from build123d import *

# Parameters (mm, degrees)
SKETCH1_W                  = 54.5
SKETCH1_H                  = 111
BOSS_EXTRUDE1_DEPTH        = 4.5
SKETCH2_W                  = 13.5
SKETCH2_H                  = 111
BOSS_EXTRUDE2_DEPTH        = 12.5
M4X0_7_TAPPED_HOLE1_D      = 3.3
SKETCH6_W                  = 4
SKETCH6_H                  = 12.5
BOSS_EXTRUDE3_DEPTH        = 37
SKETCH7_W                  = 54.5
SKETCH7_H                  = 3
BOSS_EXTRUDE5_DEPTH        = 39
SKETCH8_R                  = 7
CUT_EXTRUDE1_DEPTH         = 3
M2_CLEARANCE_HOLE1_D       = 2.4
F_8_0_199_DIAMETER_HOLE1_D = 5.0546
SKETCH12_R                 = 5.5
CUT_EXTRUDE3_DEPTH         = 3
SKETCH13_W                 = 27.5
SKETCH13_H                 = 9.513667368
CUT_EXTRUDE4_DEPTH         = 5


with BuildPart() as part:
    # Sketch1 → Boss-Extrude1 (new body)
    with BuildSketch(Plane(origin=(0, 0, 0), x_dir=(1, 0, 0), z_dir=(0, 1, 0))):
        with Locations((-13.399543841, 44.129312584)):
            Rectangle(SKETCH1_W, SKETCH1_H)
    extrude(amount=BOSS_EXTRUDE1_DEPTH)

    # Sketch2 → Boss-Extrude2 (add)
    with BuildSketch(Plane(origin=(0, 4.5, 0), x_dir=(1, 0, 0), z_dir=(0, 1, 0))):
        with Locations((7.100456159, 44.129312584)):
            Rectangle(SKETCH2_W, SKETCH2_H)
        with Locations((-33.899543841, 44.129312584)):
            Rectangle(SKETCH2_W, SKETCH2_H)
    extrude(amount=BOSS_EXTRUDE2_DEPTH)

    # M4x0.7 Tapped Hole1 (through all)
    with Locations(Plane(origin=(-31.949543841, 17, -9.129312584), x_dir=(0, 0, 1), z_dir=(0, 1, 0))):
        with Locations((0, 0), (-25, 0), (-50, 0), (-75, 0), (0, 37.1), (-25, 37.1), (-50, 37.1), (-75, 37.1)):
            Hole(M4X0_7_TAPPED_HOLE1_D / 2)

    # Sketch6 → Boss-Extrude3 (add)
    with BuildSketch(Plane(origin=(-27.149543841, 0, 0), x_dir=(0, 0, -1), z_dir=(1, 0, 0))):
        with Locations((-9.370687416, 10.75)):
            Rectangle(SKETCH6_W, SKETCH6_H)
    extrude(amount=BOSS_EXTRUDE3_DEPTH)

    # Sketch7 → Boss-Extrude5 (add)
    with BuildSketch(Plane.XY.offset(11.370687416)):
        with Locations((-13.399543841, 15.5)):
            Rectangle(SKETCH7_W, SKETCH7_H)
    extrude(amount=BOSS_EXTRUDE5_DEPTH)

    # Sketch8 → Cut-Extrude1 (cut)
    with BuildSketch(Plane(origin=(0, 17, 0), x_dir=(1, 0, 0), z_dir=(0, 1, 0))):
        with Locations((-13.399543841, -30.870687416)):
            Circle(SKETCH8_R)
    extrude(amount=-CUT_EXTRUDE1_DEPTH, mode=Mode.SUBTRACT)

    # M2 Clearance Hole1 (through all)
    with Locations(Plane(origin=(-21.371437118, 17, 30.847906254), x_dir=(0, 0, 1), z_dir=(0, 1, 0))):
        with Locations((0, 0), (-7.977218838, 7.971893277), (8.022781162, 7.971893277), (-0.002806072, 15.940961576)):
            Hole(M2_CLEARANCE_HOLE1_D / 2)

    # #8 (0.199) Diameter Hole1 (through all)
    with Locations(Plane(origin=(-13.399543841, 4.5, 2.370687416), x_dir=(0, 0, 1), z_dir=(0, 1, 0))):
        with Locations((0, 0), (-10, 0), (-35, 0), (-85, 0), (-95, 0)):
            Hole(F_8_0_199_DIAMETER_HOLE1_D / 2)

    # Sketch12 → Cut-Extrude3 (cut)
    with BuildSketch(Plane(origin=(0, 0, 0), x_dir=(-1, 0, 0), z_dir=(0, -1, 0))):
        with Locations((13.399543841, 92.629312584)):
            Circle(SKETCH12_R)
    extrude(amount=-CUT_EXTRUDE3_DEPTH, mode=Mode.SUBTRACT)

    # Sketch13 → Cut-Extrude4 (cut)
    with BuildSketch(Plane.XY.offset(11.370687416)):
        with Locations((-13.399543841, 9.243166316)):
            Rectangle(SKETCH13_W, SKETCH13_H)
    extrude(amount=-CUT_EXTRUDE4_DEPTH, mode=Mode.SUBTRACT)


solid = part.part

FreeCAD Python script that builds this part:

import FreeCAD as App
import Part
import Sketcher

V = App.Vector
Q = App.Units.Quantity


def add_polygon(sketch, points):
    """Adds a closed chain of lines whose ends are joined by coincident constraints."""
    first, n = sketch.GeometryCount, len(points)
    for a, b in zip(points, points[1:] + points[:1]):
        sketch.addGeometry(Part.LineSegment(App.Vector(*a, 0), App.Vector(*b, 0)), False)
    for i in range(n):
        sketch.addConstraint(Sketcher.Constraint("Coincident", first + i, 2, first + (i + 1) % n, 1))

doc = App.newDocument("Part")
params = doc.addObject("Spreadsheet::Sheet", "Params")
for row, (alias, value) in enumerate([
    ("sketch1_height", "111 mm"),
    ("sketch1_width", "54.5 mm"),
    ("pad1_length", "4.5 mm"),
    ("sketch2_height", "111 mm"),
    ("sketch2_width", "13.5 mm"),
    ("pad2_length", "12.5 mm"),
    ("sketch3_diameter", "3.3 mm"),
    ("hole_diameter", "3.3 mm"),
    ("sketch4_height", "4 mm"),
    ("sketch4_width", "12.5 mm"),
    ("pad3_length", "37 mm"),
    ("sketch5_height", "3 mm"),
    ("sketch5_width", "54.5 mm"),
    ("pad4_length", "39 mm"),
    ("sketch6_diameter", "14 mm"),
    ("pocket1_length", "3 mm"),
    ("sketch7_diameter", "2.4 mm"),
    ("hole2_diameter", "2.4 mm"),
    ("hole3_diameter", "5.0546 mm"),
    ("sketch9_diameter", "11 mm"),
    ("pocket2_length", "3 mm"),
    ("sketch10_width", "27.5 mm"),
    ("pocket3_length", "5 mm"),
], start=1):
    params.set(f"A{row}", alias)
    params.set(f"B{row}", "=" + value)
    params.setAlias(f"B{row}", alias)

body = doc.addObject("PartDesign::Body", "Body")

# Sketch on XZ plane
sketch1 = doc.addObject("Sketcher::SketchObject", "Sketch")
body.addObject(sketch1)
sketch1.AttachmentSupport = (doc.XZ_Plane, [""])
sketch1.MapMode = "FlatFace"
add_polygon(sketch1, [(-40.649544, -99.629313), (-40.649544, 11.370687), (13.850456, 11.370687), (13.850456, -99.629313)])  # lines 0-3
sketch1.addConstraint(Sketcher.Constraint("Vertical", 0))
sketch1.addConstraint(Sketcher.Constraint("Horizontal", 1))
sketch1.addConstraint(Sketcher.Constraint("Vertical", 2))
sketch1.addConstraint(Sketcher.Constraint("Horizontal", 3))
sketch1.addConstraint(Sketcher.Constraint("DistanceY", 0, 1, 0, 2, Q("111 mm")))
sketch1.addConstraint(Sketcher.Constraint("DistanceX", 1, 1, 1, 2, Q("54.5 mm")))
sketch1.addConstraint(Sketcher.Constraint("DistanceX", 0, 2, -1, 1, Q("40.649544 mm")))
sketch1.addConstraint(Sketcher.Constraint("DistanceY", -1, 1, 0, 2, Q("11.370687 mm")))
sketch1.setExpression("Constraints[8]", "Params.sketch1_height")
sketch1.setExpression("Constraints[9]", "Params.sketch1_width")
pad1 = doc.addObject("PartDesign::Pad", "Pad")
body.addObject(pad1)
pad1.Profile = sketch1
pad1.setExpression("Length", "Params.pad1_length")
pad1.Reversed = True

# Sketch on XZ plane
sketch2 = doc.addObject("Sketcher::SketchObject", "Sketch001")
body.addObject(sketch2)
sketch2.AttachmentSupport = (doc.XZ_Plane, [""])
sketch2.MapMode = "FlatFace"
sketch2.AttachmentOffset = App.Placement(V(0, 0, -4.5), App.Rotation())
add_polygon(sketch2, [(0.350456, -99.629313), (0.350456, 11.370687), (13.850456, 11.370687), (13.850456, -99.629313)])  # lines 0-3
add_polygon(sketch2, [(-40.649544, -99.629313), (-40.649544, 11.370687), (-27.149544, 11.370687), (-27.149544, -99.629313)])  # lines 4-7
sketch2.addConstraint(Sketcher.Constraint("Vertical", 0))
sketch2.addConstraint(Sketcher.Constraint("Horizontal", 1))
sketch2.addConstraint(Sketcher.Constraint("Vertical", 2))
sketch2.addConstraint(Sketcher.Constraint("Horizontal", 3))
sketch2.addConstraint(Sketcher.Constraint("Vertical", 4))
sketch2.addConstraint(Sketcher.Constraint("Horizontal", 5))
sketch2.addConstraint(Sketcher.Constraint("Vertical", 6))
sketch2.addConstraint(Sketcher.Constraint("Horizontal", 7))
sketch2.addConstraint(Sketcher.Constraint("Horizontal", 1, 2, 4, 2))
sketch2.addConstraint(Sketcher.Constraint("Horizontal", 3, 2, 6, 2))
sketch2.addConstraint(Sketcher.Constraint("Equal", 3, 5))
sketch2.addConstraint(Sketcher.Constraint("DistanceY", 0, 1, 0, 2, Q("111 mm")))
sketch2.addConstraint(Sketcher.Constraint("DistanceX", 1, 1, 1, 2, Q("13.5 mm")))
sketch2.addConstraint(Sketcher.Constraint("DistanceX", 4, 2, 0, 2, Q("41 mm")))
sketch2.addConstraint(Sketcher.Constraint("DistanceX", -1, 1, 0, 2, Q("0.350456 mm")))
sketch2.addConstraint(Sketcher.Constraint("DistanceY", -1, 1, 0, 2, Q("11.370687 mm")))
sketch2.setExpression("Constraints[19]", "Params.sketch2_height")
sketch2.setExpression("Constraints[20]", "Params.sketch2_width")
pad2 = doc.addObject("PartDesign::Pad", "Pad001")
body.addObject(pad2)
pad2.Profile = sketch2
pad2.setExpression("Length", "Params.pad2_length")
pad2.Reversed = True

# Sketch on XZ plane
sketch3 = doc.addObject("Sketcher::SketchObject", "Sketch002")
body.addObject(sketch3)
sketch3.AttachmentSupport = (doc.XZ_Plane, [""])
sketch3.MapMode = "FlatFace"
sketch3.AttachmentOffset = App.Placement(V(0, 0, -17), App.Rotation())
sketch3.addGeometry(Part.Circle(V(-31.949544, -9.129313, 0), V(0, 0, 1), 1.65), False)
sketch3.addGeometry(Part.Circle(V(-31.949544, -34.129313, 0), V(0, 0, 1), 1.65), False)
sketch3.addGeometry(Part.Circle(V(-31.949544, -59.129313, 0), V(0, 0, 1), 1.65), False)
sketch3.addGeometry(Part.Circle(V(-31.949544, -84.129313, 0), V(0, 0, 1), 1.65), False)
sketch3.addGeometry(Part.Circle(V(5.150456, -9.129313, 0), V(0, 0, 1), 1.65), False)
sketch3.addGeometry(Part.Circle(V(5.150456, -34.129313, 0), V(0, 0, 1), 1.65), False)
sketch3.addGeometry(Part.Circle(V(5.150456, -59.129313, 0), V(0, 0, 1), 1.65), False)
sketch3.addGeometry(Part.Circle(V(5.150456, -84.129313, 0), V(0, 0, 1), 1.65), False)
sketch3.addConstraint(Sketcher.Constraint("Equal", 0, 1))
sketch3.addConstraint(Sketcher.Constraint("Equal", 1, 2))
sketch3.addConstraint(Sketcher.Constraint("Equal", 2, 3))
sketch3.addConstraint(Sketcher.Constraint("Equal", 3, 4))
sketch3.addConstraint(Sketcher.Constraint("Equal", 4, 5))
sketch3.addConstraint(Sketcher.Constraint("Equal", 5, 6))
sketch3.addConstraint(Sketcher.Constraint("Equal", 6, 7))
sketch3.addConstraint(Sketcher.Constraint("Horizontal", 0, 3, 4, 3))
sketch3.addConstraint(Sketcher.Constraint("Horizontal", 1, 3, 5, 3))
sketch3.addConstraint(Sketcher.Constraint("Horizontal", 2, 3, 6, 3))
sketch3.addConstraint(Sketcher.Constraint("Horizontal", 3, 3, 7, 3))
sketch3.addConstraint(Sketcher.Constraint("Vertical", 0, 3, 1, 3))
sketch3.addConstraint(Sketcher.Constraint("Vertical", 1, 3, 2, 3))
sketch3.addConstraint(Sketcher.Constraint("Vertical", 2, 3, 3, 3))
sketch3.addConstraint(Sketcher.Constraint("Vertical", 4, 3, 5, 3))
sketch3.addConstraint(Sketcher.Constraint("Vertical", 5, 3, 6, 3))
sketch3.addConstraint(Sketcher.Constraint("Vertical", 6, 3, 7, 3))
sketch3.addConstraint(Sketcher.Constraint("Diameter", 0, Q("3.3 mm")))
sketch3.addConstraint(Sketcher.Constraint("DistanceY", 1, 3, 0, 3, Q("25 mm")))
sketch3.addConstraint(Sketcher.Constraint("DistanceY", 2, 3, 1, 3, Q("25 mm")))
sketch3.addConstraint(Sketcher.Constraint("DistanceY", 3, 3, 2, 3, Q("25 mm")))
sketch3.addConstraint(Sketcher.Constraint("DistanceX", 0, 3, 4, 3, Q("37.1 mm")))
sketch3.addConstraint(Sketcher.Constraint("DistanceX", 0, 3, -1, 1, Q("31.949544 mm")))
sketch3.addConstraint(Sketcher.Constraint("DistanceY", 0, 3, -1, 1, Q("9.129313 mm")))
sketch3.setExpression("Constraints[17]", "Params.sketch3_diameter")
doc.recompute()
hole = doc.addObject("PartDesign::Hole", "Hole")
body.addObject(hole)
hole.Profile = sketch3
hole.ThreadType = "None"
hole.setExpression("Diameter", "Params.hole_diameter")
hole.DepthType = "ThroughAll"
hole.Reversed = True

# Sketch on YZ plane
sketch4 = doc.addObject("Sketcher::SketchObject", "Sketch003")
body.addObject(sketch4)
sketch4.AttachmentSupport = (doc.YZ_Plane, [""])
sketch4.MapMode = "FlatFace"
sketch4.AttachmentOffset = App.Placement(V(0, 0, -27.149544), App.Rotation())
add_polygon(sketch4, [(17, 11.370687), (4.5, 11.370687), (4.5, 7.370687), (17, 7.370687)])  # lines 0-3
sketch4.addConstraint(Sketcher.Constraint("Horizontal", 0))
sketch4.addConstraint(Sketcher.Constraint("Vertical", 1))
sketch4.addConstraint(Sketcher.Constraint("Horizontal", 2))
sketch4.addConstraint(Sketcher.Constraint("Vertical", 3))
sketch4.addConstraint(Sketcher.Constraint("DistanceY", 1, 2, 1, 1, Q("4 mm")))
sketch4.addConstraint(Sketcher.Constraint("DistanceX", 0, 2, 0, 1, Q("12.5 mm")))
sketch4.addConstraint(Sketcher.Constraint("DistanceX", -1, 1, 2, 2, Q("17 mm")))
sketch4.addConstraint(Sketcher.Constraint("DistanceY", -1, 1, 0, 2, Q("11.370687 mm")))
sketch4.setExpression("Constraints[8]", "Params.sketch4_height")
sketch4.setExpression("Constraints[9]", "Params.sketch4_width")
pad3 = doc.addObject("PartDesign::Pad", "Pad002")
body.addObject(pad3)
pad3.Profile = sketch4
pad3.setExpression("Length", "Params.pad3_length")

# Sketch on XY plane
sketch5 = doc.addObject("Sketcher::SketchObject", "Sketch004")
body.addObject(sketch5)
sketch5.AttachmentSupport = (doc.XY_Plane, [""])
sketch5.MapMode = "FlatFace"
sketch5.AttachmentOffset = App.Placement(V(0, 0, 11.370687), App.Rotation())
add_polygon(sketch5, [(-40.649544, 17), (-40.649544, 14), (13.850456, 14), (13.850456, 17)])  # lines 0-3
sketch5.addConstraint(Sketcher.Constraint("Vertical", 0))
sketch5.addConstraint(Sketcher.Constraint("Horizontal", 1))
sketch5.addConstraint(Sketcher.Constraint("Vertical", 2))
sketch5.addConstraint(Sketcher.Constraint("Horizontal", 3))
sketch5.addConstraint(Sketcher.Constraint("DistanceY", 0, 2, 0, 1, Q("3 mm")))
sketch5.addConstraint(Sketcher.Constraint("DistanceX", 1, 1, 1, 2, Q("54.5 mm")))
sketch5.addConstraint(Sketcher.Constraint("DistanceY", -1, 1, 0, 2, Q("14 mm")))
sketch5.addConstraint(Sketcher.Constraint("DistanceX", 0, 2, -1, 1, Q("40.649544 mm")))
sketch5.setExpression("Constraints[8]", "Params.sketch5_height")
sketch5.setExpression("Constraints[9]", "Params.sketch5_width")
pad4 = doc.addObject("PartDesign::Pad", "Pad003")
body.addObject(pad4)
pad4.Profile = sketch5
pad4.setExpression("Length", "Params.pad4_length")

# Sketch on XZ plane
sketch6 = doc.addObject("Sketcher::SketchObject", "Sketch005")
body.addObject(sketch6)
sketch6.AttachmentSupport = (doc.XZ_Plane, [""])
sketch6.MapMode = "FlatFace"
sketch6.AttachmentOffset = App.Placement(V(0, 0, -17), App.Rotation())
sketch6.addGeometry(Part.Circle(V(-13.399544, 30.870687, 0), V(0, 0, 1), 7), False)
sketch6.addConstraint(Sketcher.Constraint("Diameter", 0, Q("14 mm")))
sketch6.addConstraint(Sketcher.Constraint("DistanceX", 0, 3, -1, 1, Q("13.399544 mm")))
sketch6.addConstraint(Sketcher.Constraint("DistanceY", -1, 1, 0, 3, Q("30.870687 mm")))
sketch6.setExpression("Constraints[0]", "Params.sketch6_diameter")
pocket1 = doc.addObject("PartDesign::Pocket", "Pocket")
body.addObject(pocket1)
pocket1.Profile = sketch6
pocket1.setExpression("Length", "Params.pocket1_length")
pocket1.Reversed = True

# Sketch on XZ plane
sketch7 = doc.addObject("Sketcher::SketchObject", "Sketch006")
body.addObject(sketch7)
sketch7.AttachmentSupport = (doc.XZ_Plane, [""])
sketch7.MapMode = "FlatFace"
sketch7.AttachmentOffset = App.Placement(V(0, 0, -17), App.Rotation())
sketch7.addGeometry(Part.Circle(V(-21.371437, 30.847906, 0), V(0, 0, 1), 1.2), False)
sketch7.addGeometry(Part.Circle(V(-13.399544, 22.870687, 0), V(0, 0, 1), 1.2), False)
sketch7.addGeometry(Part.Circle(V(-13.399544, 38.870687, 0), V(0, 0, 1), 1.2), False)
sketch7.addGeometry(Part.Circle(V(-5.430476, 30.8451, 0), V(0, 0, 1), 1.2), False)
sketch7.addConstraint(Sketcher.Constraint("Equal", 0, 1))
sketch7.addConstraint(Sketcher.Constraint("Equal", 1, 2))
sketch7.addConstraint(Sketcher.Constraint("Equal", 2, 3))
sketch7.addConstraint(Sketcher.Constraint("Vertical", 1, 3, 2, 3))
sketch7.addConstraint(Sketcher.Constraint("Diameter", 0, Q("2.4 mm")))
sketch7.addConstraint(Sketcher.Constraint("DistanceY", 1, 3, 2, 3, Q("16 mm")))
sketch7.addConstraint(Sketcher.Constraint("DistanceY", -1, 1, 3, 3, Q("30.8451 mm")))
sketch7.addConstraint(Sketcher.Constraint("DistanceY", 1, 3, 0, 3, Q("7.977219 mm")))
sketch7.addConstraint(Sketcher.Constraint("DistanceX", 1, 3, 3, 3, Q("7.969068 mm")))
sketch7.addConstraint(Sketcher.Constraint("DistanceX", 0, 3, 3, 3, Q("15.940962 mm")))
sketch7.addConstraint(Sketcher.Constraint("DistanceX", 0, 3, -1, 1, Q("21.371437 mm")))
sketch7.addConstraint(Sketcher.Constraint("DistanceY", -1, 1, 0, 3, Q("30.847906 mm")))
sketch7.setExpression("Constraints[4]", "Params.sketch7_diameter")
doc.recompute()
hole2 = doc.addObject("PartDesign::Hole", "Hole001")
body.addObject(hole2)
hole2.Profile = sketch7
hole2.ThreadType = "None"
hole2.setExpression("Diameter", "Params.hole2_diameter")
hole2.DepthType = "ThroughAll"
hole2.Reversed = True

# Sketch on XZ plane
sketch8 = doc.addObject("Sketcher::SketchObject", "Sketch007")
body.addObject(sketch8)
sketch8.AttachmentSupport = (doc.XZ_Plane, [""])
sketch8.MapMode = "FlatFace"
sketch8.AttachmentOffset = App.Placement(V(0, 0, -4.5), App.Rotation())
sketch8.addGeometry(Part.Circle(V(-13.399544, 2.370687, 0), V(0, 0, 1), 2.5273), False)
sketch8.addGeometry(Part.Circle(V(-13.399544, -7.629313, 0), V(0, 0, 1), 2.5273), False)
sketch8.addGeometry(Part.Circle(V(-13.399544, -32.629313, 0), V(0, 0, 1), 2.5273), False)
sketch8.addGeometry(Part.Circle(V(-13.399544, -82.629313, 0), V(0, 0, 1), 2.5273), False)
sketch8.addGeometry(Part.Circle(V(-13.399544, -92.629313, 0), V(0, 0, 1), 2.5273), False)
sketch8.addConstraint(Sketcher.Constraint("Equal", 0, 1))
sketch8.addConstraint(Sketcher.Constraint("Equal", 1, 2))
sketch8.addConstraint(Sketcher.Constraint("Equal", 2, 3))
sketch8.addConstraint(Sketcher.Constraint("Equal", 3, 4))
sketch8.addConstraint(Sketcher.Constraint("Vertical", 0, 3, 1, 3))
sketch8.addConstraint(Sketcher.Constraint("Vertical", 1, 3, 2, 3))
sketch8.addConstraint(Sketcher.Constraint("Vertical", 2, 3, 3, 3))
sketch8.addConstraint(Sketcher.Constraint("Vertical", 3, 3, 4, 3))
sketch8.addConstraint(Sketcher.Constraint("DistanceY", 1, 3, 0, 3, Q("10 mm")))
sketch8.addConstraint(Sketcher.Constraint("DistanceY", 2, 3, 1, 3, Q("25 mm")))
sketch8.addConstraint(Sketcher.Constraint("DistanceY", 3, 3, 2, 3, Q("50 mm")))
sketch8.addConstraint(Sketcher.Constraint("DistanceY", 4, 3, 3, 3, Q("10 mm")))
sketch8.addConstraint(Sketcher.Constraint("Diameter", 0, Q("5.0546 mm")))
sketch8.addConstraint(Sketcher.Constraint("DistanceX", 0, 3, -1, 1, Q("13.399544 mm")))
sketch8.addConstraint(Sketcher.Constraint("DistanceY", -1, 1, 0, 3, Q("2.370687 mm")))
doc.recompute()
hole3 = doc.addObject("PartDesign::Hole", "Hole002")
body.addObject(hole3)
hole3.Profile = sketch8
hole3.ThreadType = "None"
hole3.setExpression("Diameter", "Params.hole3_diameter")
hole3.DepthType = "ThroughAll"
hole3.Reversed = True

# Sketch on XZ plane
sketch9 = doc.addObject("Sketcher::SketchObject", "Sketch008")
body.addObject(sketch9)
sketch9.AttachmentSupport = (doc.XZ_Plane, [""])
sketch9.MapMode = "FlatFace"
sketch9.addGeometry(Part.Circle(V(-13.399544, -92.629313, 0), V(0, 0, 1), 5.5), False)
sketch9.addConstraint(Sketcher.Constraint("Diameter", 0, Q("11 mm")))
sketch9.addConstraint(Sketcher.Constraint("DistanceX", 0, 3, -1, 1, Q("13.399544 mm")))
sketch9.addConstraint(Sketcher.Constraint("DistanceY", 0, 3, -1, 1, Q("92.629313 mm")))
sketch9.setExpression("Constraints[0]", "Params.sketch9_diameter")
pocket2 = doc.addObject("PartDesign::Pocket", "Pocket001")
body.addObject(pocket2)
pocket2.Profile = sketch9
pocket2.setExpression("Length", "Params.pocket2_length")

# Sketch on XY plane
sketch10 = doc.addObject("Sketcher::SketchObject", "Sketch009")
body.addObject(sketch10)
sketch10.AttachmentSupport = (doc.XY_Plane, [""])
sketch10.MapMode = "FlatFace"
sketch10.AttachmentOffset = App.Placement(V(0, 0, 11.370687), App.Rotation())
add_polygon(sketch10, [(-27.149544, 14), (-27.149544, 4.486333), (0.350456, 4.486333), (0.350456, 14)])  # lines 0-3
sketch10.addConstraint(Sketcher.Constraint("Vertical", 0))
sketch10.addConstraint(Sketcher.Constraint("Horizontal", 1))
sketch10.addConstraint(Sketcher.Constraint("Vertical", 2))
sketch10.addConstraint(Sketcher.Constraint("Horizontal", 3))
sketch10.addConstraint(Sketcher.Constraint("DistanceX", 1, 1, 1, 2, Q("27.5 mm")))
sketch10.addConstraint(Sketcher.Constraint("DistanceY", -1, 1, 2, 2, Q("14 mm")))
sketch10.addConstraint(Sketcher.Constraint("DistanceY", 0, 2, 0, 1, Q("9.513667 mm")))
sketch10.addConstraint(Sketcher.Constraint("DistanceX", 0, 2, -1, 1, Q("27.149544 mm")))
sketch10.setExpression("Constraints[8]", "Params.sketch10_width")
pocket3 = doc.addObject("PartDesign::Pocket", "Pocket002")
body.addObject(pocket3)
pocket3.Profile = sketch10
pocket3.setExpression("Length", "Params.pocket3_length")

doc.recompute()
